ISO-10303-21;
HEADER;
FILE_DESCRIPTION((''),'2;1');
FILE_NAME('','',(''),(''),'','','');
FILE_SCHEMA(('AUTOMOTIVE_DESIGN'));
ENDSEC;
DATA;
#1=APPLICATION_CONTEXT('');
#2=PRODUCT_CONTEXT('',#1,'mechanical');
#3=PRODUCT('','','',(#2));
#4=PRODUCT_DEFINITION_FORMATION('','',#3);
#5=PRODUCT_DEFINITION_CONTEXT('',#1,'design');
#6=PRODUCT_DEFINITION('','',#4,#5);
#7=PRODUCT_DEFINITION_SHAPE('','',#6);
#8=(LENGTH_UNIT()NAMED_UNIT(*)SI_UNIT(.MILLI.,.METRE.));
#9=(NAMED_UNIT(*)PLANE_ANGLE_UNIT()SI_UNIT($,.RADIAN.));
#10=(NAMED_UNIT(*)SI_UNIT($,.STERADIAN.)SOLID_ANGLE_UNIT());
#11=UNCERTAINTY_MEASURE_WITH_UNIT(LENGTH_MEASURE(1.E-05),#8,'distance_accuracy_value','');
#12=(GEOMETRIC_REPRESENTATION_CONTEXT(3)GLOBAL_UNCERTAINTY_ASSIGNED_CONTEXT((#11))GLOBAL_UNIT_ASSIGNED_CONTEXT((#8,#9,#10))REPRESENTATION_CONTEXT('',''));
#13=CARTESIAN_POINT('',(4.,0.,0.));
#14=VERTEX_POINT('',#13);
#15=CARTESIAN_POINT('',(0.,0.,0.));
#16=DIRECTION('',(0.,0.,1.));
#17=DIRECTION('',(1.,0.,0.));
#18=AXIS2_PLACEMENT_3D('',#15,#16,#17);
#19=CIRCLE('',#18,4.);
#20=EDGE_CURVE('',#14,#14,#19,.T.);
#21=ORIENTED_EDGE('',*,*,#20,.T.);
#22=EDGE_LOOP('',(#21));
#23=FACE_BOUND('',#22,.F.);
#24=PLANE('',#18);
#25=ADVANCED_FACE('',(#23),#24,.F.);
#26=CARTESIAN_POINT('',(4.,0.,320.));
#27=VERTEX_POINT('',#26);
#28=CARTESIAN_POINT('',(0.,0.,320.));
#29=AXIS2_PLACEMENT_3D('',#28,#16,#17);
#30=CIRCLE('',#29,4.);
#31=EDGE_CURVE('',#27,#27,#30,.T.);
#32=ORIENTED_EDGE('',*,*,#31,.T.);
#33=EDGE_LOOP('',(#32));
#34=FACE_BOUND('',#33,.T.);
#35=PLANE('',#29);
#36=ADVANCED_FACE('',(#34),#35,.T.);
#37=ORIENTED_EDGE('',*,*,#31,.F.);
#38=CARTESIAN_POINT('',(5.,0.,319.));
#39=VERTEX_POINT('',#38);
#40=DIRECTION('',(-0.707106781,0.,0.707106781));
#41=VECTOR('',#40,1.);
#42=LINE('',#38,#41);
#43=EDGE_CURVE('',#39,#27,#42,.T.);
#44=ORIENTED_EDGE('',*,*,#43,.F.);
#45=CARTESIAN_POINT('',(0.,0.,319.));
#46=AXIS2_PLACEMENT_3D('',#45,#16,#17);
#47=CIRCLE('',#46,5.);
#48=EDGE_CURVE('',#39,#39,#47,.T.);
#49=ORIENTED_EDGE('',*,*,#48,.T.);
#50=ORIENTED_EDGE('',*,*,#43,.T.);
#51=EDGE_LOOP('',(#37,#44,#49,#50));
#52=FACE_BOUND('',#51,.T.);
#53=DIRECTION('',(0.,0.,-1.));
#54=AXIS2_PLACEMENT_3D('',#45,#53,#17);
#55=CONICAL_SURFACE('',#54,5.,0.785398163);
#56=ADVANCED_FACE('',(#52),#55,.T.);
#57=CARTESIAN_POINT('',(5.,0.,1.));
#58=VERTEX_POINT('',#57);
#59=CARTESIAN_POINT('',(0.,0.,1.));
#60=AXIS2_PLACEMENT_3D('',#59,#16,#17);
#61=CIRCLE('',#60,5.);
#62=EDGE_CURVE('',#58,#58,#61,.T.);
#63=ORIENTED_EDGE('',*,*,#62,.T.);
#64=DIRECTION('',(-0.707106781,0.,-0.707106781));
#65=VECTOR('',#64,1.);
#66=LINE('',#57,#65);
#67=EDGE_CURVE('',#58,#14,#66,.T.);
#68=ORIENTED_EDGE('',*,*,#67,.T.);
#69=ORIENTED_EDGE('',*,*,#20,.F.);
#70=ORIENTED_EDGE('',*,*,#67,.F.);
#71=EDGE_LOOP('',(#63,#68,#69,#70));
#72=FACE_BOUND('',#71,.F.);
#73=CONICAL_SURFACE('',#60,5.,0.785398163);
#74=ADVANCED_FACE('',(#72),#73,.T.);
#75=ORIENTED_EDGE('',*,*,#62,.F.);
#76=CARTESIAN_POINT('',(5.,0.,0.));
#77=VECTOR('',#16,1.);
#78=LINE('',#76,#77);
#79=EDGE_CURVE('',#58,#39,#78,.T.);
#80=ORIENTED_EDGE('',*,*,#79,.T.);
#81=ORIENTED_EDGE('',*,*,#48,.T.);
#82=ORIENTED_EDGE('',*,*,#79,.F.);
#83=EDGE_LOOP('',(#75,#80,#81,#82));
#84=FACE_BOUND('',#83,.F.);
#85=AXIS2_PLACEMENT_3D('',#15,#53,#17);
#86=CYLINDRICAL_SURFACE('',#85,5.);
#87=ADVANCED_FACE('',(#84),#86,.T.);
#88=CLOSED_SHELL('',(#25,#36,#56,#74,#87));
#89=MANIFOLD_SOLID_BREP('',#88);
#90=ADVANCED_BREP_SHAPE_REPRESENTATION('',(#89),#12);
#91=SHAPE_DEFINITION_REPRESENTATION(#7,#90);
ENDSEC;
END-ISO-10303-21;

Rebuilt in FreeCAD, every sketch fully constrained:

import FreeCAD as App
import Part
import Sketcher

V = App.Vector


def edges_at(feature, points):
    """Names of the edges that pass closest to the given points."""
    edges = feature.Shape.Edges
    near = lambda p: min(range(len(edges)), key=lambda i: edges[i].distToShape(Part.Vertex(*p))[0])
    return sorted({f"Edge{near(p) + 1}" for p in points})

doc = App.newDocument("Part")
body = doc.addObject("PartDesign::Body", "Body")

# Sketch on XY plane
sketch1 = body.newObject("Sketcher::SketchObject", "Sketch")
sketch1.AttachmentSupport = (doc.getObject("XY_Plane"), [""])
sketch1.MapMode = "FlatFace"
sketch1.addGeometry(Part.Circle(V(0, 0, 0), V(0, 0, 1), 5), False)
sketch1.addConstraint([
    Sketcher.Constraint("Coincident", 0, 3, -1, 1),
    Sketcher.Constraint("Diameter", 0, 10.0),
])
pad1 = body.newObject("PartDesign::Pad", "Pad")
pad1.Profile = sketch1
pad1.Length = 320
doc.recompute()

chamfer = body.newObject("PartDesign::Chamfer", "Chamfer")
chamfer.Base = (pad1, edges_at(pad1, [(-5, 0, 320), (-5, 0, 0)]))
chamfer.Size = 1

doc.recompute()
